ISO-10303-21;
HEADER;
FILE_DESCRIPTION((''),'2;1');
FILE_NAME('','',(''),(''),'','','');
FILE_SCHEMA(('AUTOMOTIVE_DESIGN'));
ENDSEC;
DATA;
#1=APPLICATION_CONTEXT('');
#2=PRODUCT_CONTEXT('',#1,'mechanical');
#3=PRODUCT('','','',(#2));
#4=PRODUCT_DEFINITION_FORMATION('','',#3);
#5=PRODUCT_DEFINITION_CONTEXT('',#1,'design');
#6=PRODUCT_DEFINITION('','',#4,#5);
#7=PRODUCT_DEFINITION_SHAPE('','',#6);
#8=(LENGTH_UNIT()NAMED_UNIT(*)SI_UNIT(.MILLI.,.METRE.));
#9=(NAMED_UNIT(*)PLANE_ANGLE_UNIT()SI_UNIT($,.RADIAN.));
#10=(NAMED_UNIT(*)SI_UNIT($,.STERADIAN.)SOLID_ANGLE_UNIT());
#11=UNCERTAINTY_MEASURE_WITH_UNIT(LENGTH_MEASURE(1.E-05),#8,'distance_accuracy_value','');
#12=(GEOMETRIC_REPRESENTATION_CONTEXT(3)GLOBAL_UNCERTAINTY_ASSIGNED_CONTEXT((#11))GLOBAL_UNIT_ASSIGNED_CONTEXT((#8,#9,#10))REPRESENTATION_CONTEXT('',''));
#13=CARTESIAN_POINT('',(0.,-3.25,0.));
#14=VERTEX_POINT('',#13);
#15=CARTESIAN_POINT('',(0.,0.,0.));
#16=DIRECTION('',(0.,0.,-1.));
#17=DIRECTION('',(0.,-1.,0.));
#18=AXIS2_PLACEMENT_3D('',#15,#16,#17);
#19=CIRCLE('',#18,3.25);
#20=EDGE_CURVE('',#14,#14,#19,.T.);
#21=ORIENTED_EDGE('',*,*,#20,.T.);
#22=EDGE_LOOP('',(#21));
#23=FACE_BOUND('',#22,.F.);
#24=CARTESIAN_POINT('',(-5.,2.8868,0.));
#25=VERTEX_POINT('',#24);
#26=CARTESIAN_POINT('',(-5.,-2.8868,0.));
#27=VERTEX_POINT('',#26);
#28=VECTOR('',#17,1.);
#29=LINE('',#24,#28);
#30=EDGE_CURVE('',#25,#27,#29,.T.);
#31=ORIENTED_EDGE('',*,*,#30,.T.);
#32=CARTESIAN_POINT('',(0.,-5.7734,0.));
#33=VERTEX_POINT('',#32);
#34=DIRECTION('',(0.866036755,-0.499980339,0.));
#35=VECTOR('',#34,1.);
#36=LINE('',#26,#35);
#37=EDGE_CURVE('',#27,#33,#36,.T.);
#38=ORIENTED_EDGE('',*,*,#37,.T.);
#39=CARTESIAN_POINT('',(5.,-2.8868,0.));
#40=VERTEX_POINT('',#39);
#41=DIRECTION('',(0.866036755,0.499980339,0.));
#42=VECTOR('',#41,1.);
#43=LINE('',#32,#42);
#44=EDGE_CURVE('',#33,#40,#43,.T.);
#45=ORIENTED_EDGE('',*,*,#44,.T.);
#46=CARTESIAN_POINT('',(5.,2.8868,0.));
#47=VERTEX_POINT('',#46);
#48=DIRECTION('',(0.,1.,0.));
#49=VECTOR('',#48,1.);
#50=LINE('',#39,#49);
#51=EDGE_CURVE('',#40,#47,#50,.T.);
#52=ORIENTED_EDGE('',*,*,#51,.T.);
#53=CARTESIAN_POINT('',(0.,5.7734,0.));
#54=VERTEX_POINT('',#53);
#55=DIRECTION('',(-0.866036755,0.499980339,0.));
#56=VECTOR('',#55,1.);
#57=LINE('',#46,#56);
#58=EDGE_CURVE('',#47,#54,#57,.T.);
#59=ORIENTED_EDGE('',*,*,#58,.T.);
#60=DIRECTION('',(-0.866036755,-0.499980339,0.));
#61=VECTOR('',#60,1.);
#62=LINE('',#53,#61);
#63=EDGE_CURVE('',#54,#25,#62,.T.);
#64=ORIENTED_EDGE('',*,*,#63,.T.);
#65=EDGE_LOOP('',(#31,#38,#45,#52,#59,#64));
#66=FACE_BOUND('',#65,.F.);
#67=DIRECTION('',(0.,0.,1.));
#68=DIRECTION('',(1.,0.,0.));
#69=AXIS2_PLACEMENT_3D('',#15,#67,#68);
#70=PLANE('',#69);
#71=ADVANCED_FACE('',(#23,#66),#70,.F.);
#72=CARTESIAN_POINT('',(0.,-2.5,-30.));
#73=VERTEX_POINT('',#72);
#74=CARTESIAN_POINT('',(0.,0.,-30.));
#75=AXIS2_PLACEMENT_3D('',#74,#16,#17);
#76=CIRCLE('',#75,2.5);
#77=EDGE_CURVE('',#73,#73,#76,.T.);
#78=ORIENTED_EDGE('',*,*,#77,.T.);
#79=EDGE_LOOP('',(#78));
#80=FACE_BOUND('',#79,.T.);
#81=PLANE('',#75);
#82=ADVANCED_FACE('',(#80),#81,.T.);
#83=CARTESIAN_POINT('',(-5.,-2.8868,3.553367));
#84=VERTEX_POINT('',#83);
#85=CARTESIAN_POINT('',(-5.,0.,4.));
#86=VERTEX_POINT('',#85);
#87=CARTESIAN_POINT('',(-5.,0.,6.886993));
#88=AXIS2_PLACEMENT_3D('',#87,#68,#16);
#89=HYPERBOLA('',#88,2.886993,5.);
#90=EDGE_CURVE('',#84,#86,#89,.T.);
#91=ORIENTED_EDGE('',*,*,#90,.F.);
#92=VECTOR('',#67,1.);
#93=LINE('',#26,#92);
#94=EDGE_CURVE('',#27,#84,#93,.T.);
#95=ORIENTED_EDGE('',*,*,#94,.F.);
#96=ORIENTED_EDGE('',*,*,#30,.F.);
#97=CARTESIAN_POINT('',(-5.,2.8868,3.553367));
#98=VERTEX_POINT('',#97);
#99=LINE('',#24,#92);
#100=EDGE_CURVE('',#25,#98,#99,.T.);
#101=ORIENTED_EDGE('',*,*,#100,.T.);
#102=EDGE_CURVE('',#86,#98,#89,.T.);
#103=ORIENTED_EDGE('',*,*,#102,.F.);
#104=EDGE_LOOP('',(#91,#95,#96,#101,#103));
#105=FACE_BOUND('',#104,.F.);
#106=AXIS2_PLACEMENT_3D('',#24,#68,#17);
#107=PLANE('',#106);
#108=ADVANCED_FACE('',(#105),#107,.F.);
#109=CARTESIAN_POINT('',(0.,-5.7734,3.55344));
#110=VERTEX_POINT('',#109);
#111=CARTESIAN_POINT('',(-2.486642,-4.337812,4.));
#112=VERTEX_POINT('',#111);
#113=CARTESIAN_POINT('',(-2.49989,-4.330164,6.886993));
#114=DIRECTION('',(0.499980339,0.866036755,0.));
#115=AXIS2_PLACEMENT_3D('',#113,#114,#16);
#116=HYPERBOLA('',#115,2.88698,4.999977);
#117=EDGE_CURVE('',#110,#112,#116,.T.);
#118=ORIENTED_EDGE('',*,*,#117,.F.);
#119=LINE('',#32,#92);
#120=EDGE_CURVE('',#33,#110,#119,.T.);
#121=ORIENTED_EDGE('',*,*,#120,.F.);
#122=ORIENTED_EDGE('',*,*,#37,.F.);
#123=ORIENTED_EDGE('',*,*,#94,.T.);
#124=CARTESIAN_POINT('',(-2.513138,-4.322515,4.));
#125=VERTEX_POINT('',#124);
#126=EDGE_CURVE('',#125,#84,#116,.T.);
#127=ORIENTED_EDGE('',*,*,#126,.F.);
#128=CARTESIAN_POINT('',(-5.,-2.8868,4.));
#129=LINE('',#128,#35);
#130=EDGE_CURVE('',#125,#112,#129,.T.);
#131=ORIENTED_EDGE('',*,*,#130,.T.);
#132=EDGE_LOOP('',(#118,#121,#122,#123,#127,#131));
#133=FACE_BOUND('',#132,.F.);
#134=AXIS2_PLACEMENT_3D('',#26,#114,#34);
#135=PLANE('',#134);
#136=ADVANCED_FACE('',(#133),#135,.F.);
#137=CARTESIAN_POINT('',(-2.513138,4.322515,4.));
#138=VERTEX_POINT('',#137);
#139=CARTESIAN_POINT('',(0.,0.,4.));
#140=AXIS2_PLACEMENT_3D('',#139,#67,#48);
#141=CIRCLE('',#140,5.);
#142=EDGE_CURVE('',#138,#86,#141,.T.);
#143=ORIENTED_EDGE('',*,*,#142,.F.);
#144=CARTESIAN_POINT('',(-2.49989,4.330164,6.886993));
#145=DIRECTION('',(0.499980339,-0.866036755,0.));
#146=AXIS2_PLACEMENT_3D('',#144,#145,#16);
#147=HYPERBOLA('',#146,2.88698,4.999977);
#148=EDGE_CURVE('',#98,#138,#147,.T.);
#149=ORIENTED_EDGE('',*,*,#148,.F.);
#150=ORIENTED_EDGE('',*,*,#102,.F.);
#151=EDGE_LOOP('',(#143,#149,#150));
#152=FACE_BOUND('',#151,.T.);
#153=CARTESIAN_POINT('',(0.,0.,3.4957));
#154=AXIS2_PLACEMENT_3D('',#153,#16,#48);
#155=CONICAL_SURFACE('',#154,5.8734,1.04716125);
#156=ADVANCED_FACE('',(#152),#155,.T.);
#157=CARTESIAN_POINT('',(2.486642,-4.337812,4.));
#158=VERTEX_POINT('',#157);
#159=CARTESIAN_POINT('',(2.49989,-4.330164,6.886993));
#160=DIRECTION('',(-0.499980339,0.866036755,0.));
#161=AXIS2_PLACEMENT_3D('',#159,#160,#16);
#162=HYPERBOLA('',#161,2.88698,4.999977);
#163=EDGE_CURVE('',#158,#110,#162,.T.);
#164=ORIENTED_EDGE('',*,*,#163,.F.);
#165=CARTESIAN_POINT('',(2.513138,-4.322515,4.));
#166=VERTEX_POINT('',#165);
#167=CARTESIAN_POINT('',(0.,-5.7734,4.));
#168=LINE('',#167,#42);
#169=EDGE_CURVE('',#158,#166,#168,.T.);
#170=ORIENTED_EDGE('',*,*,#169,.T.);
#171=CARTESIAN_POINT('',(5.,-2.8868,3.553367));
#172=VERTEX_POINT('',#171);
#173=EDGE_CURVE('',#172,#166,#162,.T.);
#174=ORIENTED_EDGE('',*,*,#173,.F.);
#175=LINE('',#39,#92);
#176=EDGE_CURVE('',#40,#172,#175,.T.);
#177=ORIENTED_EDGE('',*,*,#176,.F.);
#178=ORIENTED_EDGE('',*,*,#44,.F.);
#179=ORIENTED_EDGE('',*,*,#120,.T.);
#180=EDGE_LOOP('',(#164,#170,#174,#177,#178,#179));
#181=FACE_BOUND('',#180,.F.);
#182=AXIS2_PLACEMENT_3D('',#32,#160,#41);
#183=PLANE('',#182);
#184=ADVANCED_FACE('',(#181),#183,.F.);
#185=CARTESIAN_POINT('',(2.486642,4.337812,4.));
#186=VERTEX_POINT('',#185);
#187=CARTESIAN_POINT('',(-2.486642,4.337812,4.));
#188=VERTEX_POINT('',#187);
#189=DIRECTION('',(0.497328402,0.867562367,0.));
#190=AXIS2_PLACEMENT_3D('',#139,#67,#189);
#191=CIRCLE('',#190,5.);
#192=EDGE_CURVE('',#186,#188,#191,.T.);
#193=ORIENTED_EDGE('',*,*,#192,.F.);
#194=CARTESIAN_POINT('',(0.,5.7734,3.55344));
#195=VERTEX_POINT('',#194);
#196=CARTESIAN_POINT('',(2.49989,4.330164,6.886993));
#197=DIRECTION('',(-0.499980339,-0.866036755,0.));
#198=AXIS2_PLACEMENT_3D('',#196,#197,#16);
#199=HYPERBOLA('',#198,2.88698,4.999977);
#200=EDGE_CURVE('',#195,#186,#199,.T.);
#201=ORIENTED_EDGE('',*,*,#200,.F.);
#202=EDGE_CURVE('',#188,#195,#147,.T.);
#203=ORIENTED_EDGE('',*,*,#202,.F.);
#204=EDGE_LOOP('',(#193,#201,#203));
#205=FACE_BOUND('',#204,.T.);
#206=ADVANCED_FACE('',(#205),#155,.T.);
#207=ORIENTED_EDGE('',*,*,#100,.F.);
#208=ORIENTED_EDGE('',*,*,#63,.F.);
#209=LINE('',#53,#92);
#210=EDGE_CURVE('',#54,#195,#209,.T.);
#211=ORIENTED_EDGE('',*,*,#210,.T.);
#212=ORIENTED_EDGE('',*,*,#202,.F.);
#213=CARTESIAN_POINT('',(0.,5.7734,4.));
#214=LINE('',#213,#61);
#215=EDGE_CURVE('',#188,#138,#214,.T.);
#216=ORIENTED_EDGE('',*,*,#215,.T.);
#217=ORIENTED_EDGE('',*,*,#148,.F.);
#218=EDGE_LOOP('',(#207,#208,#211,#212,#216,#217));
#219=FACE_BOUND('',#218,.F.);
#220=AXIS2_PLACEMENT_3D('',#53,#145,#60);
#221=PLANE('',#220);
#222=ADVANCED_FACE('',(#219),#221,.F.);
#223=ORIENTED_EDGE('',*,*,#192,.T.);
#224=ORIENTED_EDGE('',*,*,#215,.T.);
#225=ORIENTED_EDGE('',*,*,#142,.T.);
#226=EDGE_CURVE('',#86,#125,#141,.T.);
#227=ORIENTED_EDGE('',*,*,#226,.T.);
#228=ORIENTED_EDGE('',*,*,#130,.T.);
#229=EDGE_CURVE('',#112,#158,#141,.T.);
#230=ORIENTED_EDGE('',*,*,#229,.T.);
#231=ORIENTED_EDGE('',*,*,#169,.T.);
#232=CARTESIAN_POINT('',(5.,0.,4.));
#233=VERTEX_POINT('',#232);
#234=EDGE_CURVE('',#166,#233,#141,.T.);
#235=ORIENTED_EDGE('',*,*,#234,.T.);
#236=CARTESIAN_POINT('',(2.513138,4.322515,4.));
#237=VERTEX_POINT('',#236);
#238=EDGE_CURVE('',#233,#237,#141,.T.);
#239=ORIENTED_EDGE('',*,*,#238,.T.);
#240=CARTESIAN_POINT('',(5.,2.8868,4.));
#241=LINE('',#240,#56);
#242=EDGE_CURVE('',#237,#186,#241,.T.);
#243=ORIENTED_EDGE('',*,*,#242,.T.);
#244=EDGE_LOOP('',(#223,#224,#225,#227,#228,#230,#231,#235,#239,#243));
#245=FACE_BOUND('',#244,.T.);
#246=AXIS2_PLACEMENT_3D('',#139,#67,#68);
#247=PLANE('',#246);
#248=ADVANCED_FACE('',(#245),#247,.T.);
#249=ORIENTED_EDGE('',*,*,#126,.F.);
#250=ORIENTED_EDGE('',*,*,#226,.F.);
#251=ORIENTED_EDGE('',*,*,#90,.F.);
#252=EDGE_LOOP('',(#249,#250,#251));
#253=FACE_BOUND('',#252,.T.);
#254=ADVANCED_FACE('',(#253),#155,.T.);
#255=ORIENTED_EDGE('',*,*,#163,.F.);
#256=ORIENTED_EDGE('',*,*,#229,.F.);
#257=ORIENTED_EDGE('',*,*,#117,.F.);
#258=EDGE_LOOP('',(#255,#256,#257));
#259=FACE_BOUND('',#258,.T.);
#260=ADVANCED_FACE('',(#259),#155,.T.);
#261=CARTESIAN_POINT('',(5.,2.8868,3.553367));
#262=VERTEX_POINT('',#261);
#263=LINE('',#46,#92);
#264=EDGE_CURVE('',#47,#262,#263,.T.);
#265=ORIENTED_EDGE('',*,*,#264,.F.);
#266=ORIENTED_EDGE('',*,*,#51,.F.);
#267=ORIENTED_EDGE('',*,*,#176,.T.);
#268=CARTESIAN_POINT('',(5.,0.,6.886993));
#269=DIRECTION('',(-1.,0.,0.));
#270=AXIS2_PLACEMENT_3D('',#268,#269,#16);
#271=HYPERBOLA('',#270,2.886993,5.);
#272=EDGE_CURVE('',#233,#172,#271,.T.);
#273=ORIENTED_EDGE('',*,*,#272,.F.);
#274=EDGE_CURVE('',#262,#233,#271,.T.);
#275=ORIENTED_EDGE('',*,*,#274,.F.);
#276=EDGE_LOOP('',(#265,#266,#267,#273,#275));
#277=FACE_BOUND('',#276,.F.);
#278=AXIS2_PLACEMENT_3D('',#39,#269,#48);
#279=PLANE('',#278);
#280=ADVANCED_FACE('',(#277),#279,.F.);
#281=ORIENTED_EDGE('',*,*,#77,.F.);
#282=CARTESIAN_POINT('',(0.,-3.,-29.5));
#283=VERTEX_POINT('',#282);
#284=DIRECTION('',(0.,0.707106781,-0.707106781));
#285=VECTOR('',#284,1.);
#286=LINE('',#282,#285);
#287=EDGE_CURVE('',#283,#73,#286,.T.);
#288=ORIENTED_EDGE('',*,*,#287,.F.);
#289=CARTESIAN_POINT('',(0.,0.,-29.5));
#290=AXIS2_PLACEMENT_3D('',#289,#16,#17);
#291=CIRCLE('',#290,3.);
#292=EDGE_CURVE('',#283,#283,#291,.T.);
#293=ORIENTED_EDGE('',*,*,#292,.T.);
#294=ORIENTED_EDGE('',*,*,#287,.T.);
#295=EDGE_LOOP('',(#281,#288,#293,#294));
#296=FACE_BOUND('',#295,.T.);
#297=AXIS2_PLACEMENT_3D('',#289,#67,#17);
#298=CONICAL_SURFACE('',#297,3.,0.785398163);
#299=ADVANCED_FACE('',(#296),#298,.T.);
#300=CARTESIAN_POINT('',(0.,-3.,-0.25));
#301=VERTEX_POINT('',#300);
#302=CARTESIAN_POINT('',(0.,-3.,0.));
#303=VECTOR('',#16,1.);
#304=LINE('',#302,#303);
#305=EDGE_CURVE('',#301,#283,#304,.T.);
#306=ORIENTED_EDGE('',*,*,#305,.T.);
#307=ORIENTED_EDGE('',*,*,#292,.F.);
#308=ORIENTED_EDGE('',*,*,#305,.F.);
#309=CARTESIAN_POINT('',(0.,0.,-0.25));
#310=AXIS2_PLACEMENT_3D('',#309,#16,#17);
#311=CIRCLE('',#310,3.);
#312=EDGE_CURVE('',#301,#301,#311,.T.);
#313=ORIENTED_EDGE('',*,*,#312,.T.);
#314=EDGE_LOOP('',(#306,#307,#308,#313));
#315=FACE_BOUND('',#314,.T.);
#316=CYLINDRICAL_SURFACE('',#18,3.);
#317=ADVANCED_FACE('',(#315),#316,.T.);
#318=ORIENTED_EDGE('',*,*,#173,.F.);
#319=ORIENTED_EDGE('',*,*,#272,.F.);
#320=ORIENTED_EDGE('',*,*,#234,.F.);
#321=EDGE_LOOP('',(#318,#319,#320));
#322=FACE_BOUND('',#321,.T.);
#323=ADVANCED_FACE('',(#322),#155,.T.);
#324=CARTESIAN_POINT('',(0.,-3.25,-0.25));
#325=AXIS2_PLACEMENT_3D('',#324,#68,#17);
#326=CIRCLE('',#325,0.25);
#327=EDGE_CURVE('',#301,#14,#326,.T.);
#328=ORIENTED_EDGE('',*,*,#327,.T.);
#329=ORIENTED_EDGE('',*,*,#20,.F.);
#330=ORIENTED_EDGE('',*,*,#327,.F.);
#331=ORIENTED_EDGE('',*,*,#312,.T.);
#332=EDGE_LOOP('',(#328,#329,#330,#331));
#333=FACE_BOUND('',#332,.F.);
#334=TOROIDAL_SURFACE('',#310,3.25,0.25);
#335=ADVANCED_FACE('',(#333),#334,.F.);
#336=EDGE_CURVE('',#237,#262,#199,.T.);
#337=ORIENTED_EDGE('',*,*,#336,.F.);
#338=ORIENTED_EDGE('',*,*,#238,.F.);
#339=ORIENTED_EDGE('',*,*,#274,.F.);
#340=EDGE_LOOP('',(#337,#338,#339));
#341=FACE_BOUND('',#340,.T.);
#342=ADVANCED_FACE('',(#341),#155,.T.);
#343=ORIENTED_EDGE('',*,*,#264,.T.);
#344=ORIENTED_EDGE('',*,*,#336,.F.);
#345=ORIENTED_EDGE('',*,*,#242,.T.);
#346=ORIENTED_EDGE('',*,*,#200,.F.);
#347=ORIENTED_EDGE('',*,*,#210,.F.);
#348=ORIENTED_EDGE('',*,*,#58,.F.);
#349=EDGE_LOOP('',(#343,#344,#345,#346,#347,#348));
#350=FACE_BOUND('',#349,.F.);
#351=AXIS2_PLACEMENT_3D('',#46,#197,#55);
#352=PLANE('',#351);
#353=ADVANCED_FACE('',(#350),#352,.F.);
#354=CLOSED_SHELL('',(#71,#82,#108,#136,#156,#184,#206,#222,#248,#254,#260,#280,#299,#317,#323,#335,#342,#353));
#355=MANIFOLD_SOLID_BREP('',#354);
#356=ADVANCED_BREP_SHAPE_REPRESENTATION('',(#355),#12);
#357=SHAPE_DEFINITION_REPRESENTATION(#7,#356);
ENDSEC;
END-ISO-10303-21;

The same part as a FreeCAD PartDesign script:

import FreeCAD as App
import Part
import Sketcher

V = App.Vector
Q = App.Units.Quantity


def edges_at(feature, points):
    """Names of the edges that pass closest to the given points."""
    edges = feature.Shape.Edges
    near = lambda p: min(range(len(edges)), key=lambda i: edges[i].distToShape(Part.Vertex(*p))[0])
    return sorted({f"Edge{near(p) + 1}" for p in points})


def add_polygon(sketch, points):
    """Adds a closed chain of lines whose ends are joined by coincident constraints."""
    first, n = sketch.GeometryCount, len(points)
    for a, b in zip(points, points[1:] + points[:1]):
        sketch.addGeometry(Part.LineSegment(App.Vector(*a, 0), App.Vector(*b, 0)), False)
    for i in range(n):
        sketch.addConstraint(Sketcher.Constraint("Coincident", first + i, 2, first + (i + 1) % n, 1))

doc = App.newDocument("Part")
body = doc.addObject("PartDesign::Body", "Body")

# Sketch on XY plane
sketch1 = body.newObject("Sketcher::SketchObject", "Sketch")
sketch1.AttachmentSupport = (doc.getObject("XY_Plane"), [""])
sketch1.MapMode = "FlatFace"
add_polygon(sketch1, [(0, 6), (-5, 3), (-5, -3), (0, -6), (5, -3), (5, 3)])  # lines 0-5
sketch1.addConstraint([
    Sketcher.Constraint("Vertical", 1),
    Sketcher.Constraint("Vertical", 4),
    Sketcher.Constraint("Symmetric", 0, 2, 3, 2, -1, 1),
    Sketcher.Constraint("Symmetric", 2, 2, 5, 2, -1, 1),
    Sketcher.Constraint("PointOnObject", 2, 2, -2),
    Sketcher.Constraint("Parallel", 2, 5),
    Sketcher.Constraint("Horizontal", 1, 2, 3, 2),
    Sketcher.Constraint("DistanceX", 1, 2, 3, 2, Q("10 mm")),
    Sketcher.Constraint("DistanceY", 1, 2, 1, 1, Q("5.7736 mm")),
    Sketcher.Constraint("Distance", 0, Q("5.7734 mm")),
])
pad1 = body.newObject("PartDesign::Pad", "Pad")
pad1.Profile = sketch1
pad1.Length = 4

# Sketch on YZ plane
sketch2 = body.newObject("Sketcher::SketchObject", "Sketch001")
sketch2.AttachmentSupport = (doc.getObject("YZ_Plane"), [""])
sketch2.MapMode = "FlatFace"
add_polygon(sketch2, [(5, 4), (5.9, 3.5), (5.9, 4)])  # lines 0-2
sketch2.addConstraint([
    Sketcher.Constraint("Vertical", 1),
    Sketcher.Constraint("Horizontal", 2),
    Sketcher.Constraint("DistanceX", -1, 1, 2, 2, Q("5 mm")),
    Sketcher.Constraint("DistanceY", -1, 1, 1, 2, Q("4 mm")),
    Sketcher.Constraint("DistanceX", 2, 2, 2, 1, Q("0.8734 mm")),
    Sketcher.Constraint("DistanceY", 1, 1, 1, 2, Q("0.5043 mm")),
])
groove = body.newObject("PartDesign::Groove", "Groove")
groove.Profile = sketch2
groove.ReferenceAxis = (sketch2, ["V_Axis"])
groove.Angle = 360

# Sketch on YZ plane
sketch3 = body.newObject("Sketcher::SketchObject", "Sketch002")
sketch3.AttachmentSupport = (doc.getObject("YZ_Plane"), [""])
sketch3.MapMode = "FlatFace"
add_polygon(sketch3, [(-3, -30), (0, -30), (0, 0), (-3, 0)])  # lines 0-3
sketch3.addConstraint([
    Sketcher.Constraint("Horizontal", 0),
    Sketcher.Constraint("Vertical", 1),
    Sketcher.Constraint("Horizontal", 2),
    Sketcher.Constraint("Vertical", 3),
    Sketcher.Constraint("Coincident", 1, 2, -1, 1),
    Sketcher.Constraint("DistanceX", 0, 1, 0, 2, Q("3 mm")),
    Sketcher.Constraint("DistanceY", 1, 1, 1, 2, Q("30 mm")),
])
revolution = body.newObject("PartDesign::Revolution", "Revolution")
revolution.Profile = sketch3
revolution.ReferenceAxis = (sketch3, ["V_Axis"])
revolution.Angle = 360
doc.recompute()

chamfer = body.newObject("PartDesign::Chamfer", "Chamfer")
chamfer.Base = (revolution, edges_at(revolution, [(0, 3, -30)]))
chamfer.Size = 0.5
doc.recompute()

fillet = body.newObject("PartDesign::Fillet", "Fillet")
fillet.Base = (chamfer, edges_at(chamfer, [(0, 3, 0)]))
fillet.Radius = 0.25

doc.recompute()
